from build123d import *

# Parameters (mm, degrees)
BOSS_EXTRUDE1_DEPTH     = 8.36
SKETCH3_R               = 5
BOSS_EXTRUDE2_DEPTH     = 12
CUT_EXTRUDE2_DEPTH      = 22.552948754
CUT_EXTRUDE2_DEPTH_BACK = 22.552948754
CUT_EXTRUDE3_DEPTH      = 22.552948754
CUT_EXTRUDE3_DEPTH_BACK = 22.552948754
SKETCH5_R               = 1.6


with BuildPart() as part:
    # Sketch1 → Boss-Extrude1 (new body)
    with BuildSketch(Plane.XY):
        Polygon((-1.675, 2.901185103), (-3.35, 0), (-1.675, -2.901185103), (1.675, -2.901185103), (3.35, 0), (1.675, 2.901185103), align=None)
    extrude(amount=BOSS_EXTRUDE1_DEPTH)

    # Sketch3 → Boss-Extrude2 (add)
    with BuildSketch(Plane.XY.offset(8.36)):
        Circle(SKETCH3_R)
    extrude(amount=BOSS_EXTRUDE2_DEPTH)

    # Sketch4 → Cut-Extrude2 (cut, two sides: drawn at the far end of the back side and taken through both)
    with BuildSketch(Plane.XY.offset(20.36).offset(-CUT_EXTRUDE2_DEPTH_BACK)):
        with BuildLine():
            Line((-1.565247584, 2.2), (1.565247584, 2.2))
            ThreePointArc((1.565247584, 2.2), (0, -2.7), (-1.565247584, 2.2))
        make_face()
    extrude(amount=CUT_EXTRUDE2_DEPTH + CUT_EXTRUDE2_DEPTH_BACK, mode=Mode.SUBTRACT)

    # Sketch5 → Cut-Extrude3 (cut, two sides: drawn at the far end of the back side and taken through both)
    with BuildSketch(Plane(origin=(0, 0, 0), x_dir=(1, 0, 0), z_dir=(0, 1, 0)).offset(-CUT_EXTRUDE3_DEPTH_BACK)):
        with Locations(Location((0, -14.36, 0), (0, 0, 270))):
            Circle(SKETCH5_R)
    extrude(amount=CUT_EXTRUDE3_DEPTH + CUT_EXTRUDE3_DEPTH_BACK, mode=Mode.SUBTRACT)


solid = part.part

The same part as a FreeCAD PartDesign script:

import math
import FreeCAD as App
import Part
import Sketcher
from FreeCAD import Vector
Q = App.Units.Quantity


def add_polygon(sketch, points):
    """Adds a closed chain of lines whose ends are joined by coincident constraints."""
    first, n = sketch.GeometryCount, len(points)
    for a, b in zip(points, points[1:] + points[:1]):
        sketch.addGeometry(Part.LineSegment(App.Vector(*a, 0), App.Vector(*b, 0)), False)
    for i in range(n):
        sketch.addConstraint(Sketcher.Constraint("Coincident", first + i, 2, first + (i + 1) % n, 1))

doc = App.newDocument("Part")
body = doc.addObject("PartDesign::Body", "Body")

# Sketch on XY plane
sketch1 = body.newObject("Sketcher::SketchObject", "Sketch")
sketch1.AttachmentSupport = (doc.getObject("XY_Plane"), [""])
sketch1.MapMode = "FlatFace"
add_polygon(sketch1, [(-1.7, 2.9), (-3.4, 0), (-1.7, -2.9), (1.7, -2.9), (3.4, 0), (1.7, 2.9)])  # lines 0-5
sketch1.addConstraint([
    Sketcher.Constraint("Horizontal", 2),
    Sketcher.Constraint("Horizontal", 5),
    Sketcher.Constraint("Symmetric", 0, 2, 3, 2, -1, 1),
    Sketcher.Constraint("Symmetric", 1, 2, 4, 2, -1, 1),
    Sketcher.Constraint("PointOnObject", 0, 2, -1),
    Sketcher.Constraint("Parallel", 0, 3),
    Sketcher.Constraint("Vertical", 2, 2, 4, 2),
    Sketcher.Constraint("Angle", 0, Q("-120 deg")),
    Sketcher.Constraint("DistanceX", 2, 1, 2, 2, 3.35),
    Sketcher.Constraint("DistanceX", 0, 2, 3, 2, 6.7),
])
pad1 = body.newObject("PartDesign::Pad", "Pad")
pad1.Profile = sketch1
pad1.Length = 8.36

# Sketch on XY plane
sketch2 = body.newObject("Sketcher::SketchObject", "Sketch001")
sketch2.AttachmentSupport = (doc.getObject("XY_Plane"), [""])
sketch2.MapMode = "FlatFace"
sketch2.AttachmentOffset = App.Placement(Vector(0, 0, 8.36), App.Rotation())
sketch2.addGeometry(Part.Circle(Vector(0, 0, 0), Vector(0, 0, 1), 5), False)
sketch2.addConstraint([
    Sketcher.Constraint("Coincident", 0, 3, -1, 1),
    Sketcher.Constraint("Diameter", 0, 10.0),
])
pad2 = body.newObject("PartDesign::Pad", "Pad001")
pad2.Profile = sketch2
pad2.Length = 12

# Sketch on XY plane
sketch3 = body.newObject("Sketcher::SketchObject", "Sketch002")
sketch3.AttachmentSupport = (doc.getObject("XY_Plane"), [""])
sketch3.MapMode = "FlatFace"
sketch3.AttachmentOffset = App.Placement(Vector(0, 0, 20.36), App.Rotation())
sketch3.addGeometry([
    Part.LineSegment(Vector(1.6, 2.2, 0), Vector(-1.6, 2.2, 0)),
    Part.ArcOfCircle(Part.Circle(Vector(0, 0, 0), Vector(0, 0, 1), 2.7), math.radians(125), math.radians(415)),
], False)
sketch3.addConstraint([
    Sketcher.Constraint("Coincident", 0, 1, 1, 2),
    Sketcher.Constraint("Coincident", 1, 1, 0, 2),
    Sketcher.Constraint("Horizontal", 0),
    Sketcher.Constraint("Coincident", 1, 3, -1, 1),
    Sketcher.Constraint("Radius", 1, 2.7),
    Sketcher.Constraint("DistanceY", -1, 1, 0, 1, 2.2),
])
pocket1 = body.newObject("PartDesign::Pocket", "Pocket")
pocket1.Profile = sketch3
pocket1.Type = "ThroughAll"
pocket1.Midplane = True

# Sketch on XZ plane
sketch4 = body.newObject("Sketcher::SketchObject", "Sketch003")
sketch4.AttachmentSupport = (doc.getObject("XZ_Plane"), [""])
sketch4.MapMode = "FlatFace"
sketch4.addGeometry(Part.Circle(Vector(0, 14.4, 0), Vector(0, 0, 1), 1.6), False)
sketch4.addConstraint([
    Sketcher.Constraint("PointOnObject", 0, 3, -2),
    Sketcher.Constraint("Diameter", 0, 3.2),
    Sketcher.Constraint("DistanceY", -1, 1, 0, 3, 14.36),
])
pocket2 = body.newObject("PartDesign::Pocket", "Pocket001")
pocket2.Profile = sketch4
pocket2.Type = "ThroughAll"
pocket2.Midplane = True

doc.recompute()
